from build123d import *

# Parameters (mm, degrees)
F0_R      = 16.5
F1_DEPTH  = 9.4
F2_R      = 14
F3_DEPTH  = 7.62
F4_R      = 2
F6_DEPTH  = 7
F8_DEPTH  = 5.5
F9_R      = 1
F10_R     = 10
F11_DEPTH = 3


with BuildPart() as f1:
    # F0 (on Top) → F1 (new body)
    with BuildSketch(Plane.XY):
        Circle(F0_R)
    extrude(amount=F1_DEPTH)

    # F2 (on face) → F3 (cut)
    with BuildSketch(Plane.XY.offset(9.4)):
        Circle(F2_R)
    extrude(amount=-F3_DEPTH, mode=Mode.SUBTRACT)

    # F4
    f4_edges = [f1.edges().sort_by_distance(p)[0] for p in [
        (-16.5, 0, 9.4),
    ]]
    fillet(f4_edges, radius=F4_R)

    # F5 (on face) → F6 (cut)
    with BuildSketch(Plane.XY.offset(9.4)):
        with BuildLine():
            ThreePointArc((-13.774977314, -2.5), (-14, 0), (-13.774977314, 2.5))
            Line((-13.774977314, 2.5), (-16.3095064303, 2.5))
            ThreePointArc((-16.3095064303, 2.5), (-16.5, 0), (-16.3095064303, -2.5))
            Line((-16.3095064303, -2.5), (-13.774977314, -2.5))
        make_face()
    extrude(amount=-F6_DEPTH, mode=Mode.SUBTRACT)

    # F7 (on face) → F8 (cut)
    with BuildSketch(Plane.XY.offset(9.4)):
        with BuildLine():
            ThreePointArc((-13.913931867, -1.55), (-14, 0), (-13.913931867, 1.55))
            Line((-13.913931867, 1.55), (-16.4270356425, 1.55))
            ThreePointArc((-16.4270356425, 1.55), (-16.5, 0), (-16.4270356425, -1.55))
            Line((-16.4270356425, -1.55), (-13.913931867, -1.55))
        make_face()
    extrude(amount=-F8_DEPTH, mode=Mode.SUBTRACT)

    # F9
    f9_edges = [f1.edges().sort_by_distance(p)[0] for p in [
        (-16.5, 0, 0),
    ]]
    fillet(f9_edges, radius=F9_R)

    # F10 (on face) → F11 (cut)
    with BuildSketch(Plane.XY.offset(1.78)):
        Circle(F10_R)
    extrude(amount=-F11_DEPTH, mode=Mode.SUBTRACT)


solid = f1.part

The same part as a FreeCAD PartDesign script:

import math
import FreeCAD as App
import Part
import Sketcher
from FreeCAD import Vector
Q = App.Units.Quantity


def edges_at(feature, points):
    """Names of the edges that pass closest to the given points."""
    edges = feature.Shape.Edges
    near = lambda p: min(range(len(edges)), key=lambda i: edges[i].distToShape(Part.Vertex(*p))[0])
    return sorted({f"Edge{near(p) + 1}" for p in points})

doc = App.newDocument("Part")
body = doc.addObject("PartDesign::Body", "Body")

sketch1 = body.newObject("Sketcher::SketchObject", "Sketch")
sketch1.AttachmentSupport = (doc.getObject("XY_Plane"), [""])
sketch1.MapMode = "FlatFace"
sketch1.addGeometry(Part.Circle(Vector(0, 0, 0), Vector(0, 0, 1), 16), False)
sketch1.addConstraint(Sketcher.Constraint("Coincident", 0, 3, -1, 1))
sketch1.addConstraint(Sketcher.Constraint("Diameter", 0, Q("33 mm")))
pad1 = body.newObject("PartDesign::Pad", "Pad")
pad1.Profile = sketch1
pad1.Length = 9.4

sketch2 = body.newObject("Sketcher::SketchObject", "Sketch001")
sketch2.AttachmentSupport = (doc.getObject("XY_Plane"), [""])
sketch2.MapMode = "FlatFace"
sketch2.AttachmentOffset = App.Placement(Vector(0, 0, 9.4), App.Rotation())
sketch2.addGeometry(Part.Circle(Vector(0, 0, 0), Vector(0, 0, 1), 14), False)
sketch2.addConstraint(Sketcher.Constraint("Coincident", 0, 3, -1, 1))
sketch2.addConstraint(Sketcher.Constraint("Diameter", 0, Q("28 mm")))
pocket1 = body.newObject("PartDesign::Pocket", "Pocket")
pocket1.Profile = sketch2
pocket1.Length = 7.62
doc.recompute()

fillet = body.newObject("PartDesign::Fillet", "Fillet")
fillet.Base = (pocket1, edges_at(pocket1, [(-16.5, 0, 9.4)]))
fillet.Radius = 2

sketch3 = body.newObject("Sketcher::SketchObject", "Sketch002")
sketch3.AttachmentSupport = (doc.getObject("XY_Plane"), [""])
sketch3.MapMode = "FlatFace"
sketch3.AttachmentOffset = App.Placement(Vector(0, 0, 9.4), App.Rotation())
sketch3.addGeometry(Part.ArcOfCircle(Part.Circle(Vector(0, 0, 0), Vector(0, 0, 1), 14), math.radians(170), math.radians(190)), False)
sketch3.addGeometry(Part.LineSegment(Vector(-13.8, 2.5, 0), Vector(-16.3, 2.5, 0)), False)
sketch3.addGeometry(Part.ArcOfCircle(Part.Circle(Vector(0, 0, 0), Vector(0, 0, 1), 16.5), math.radians(171.29), math.radians(188.71)), False)
sketch3.addGeometry(Part.LineSegment(Vector(-16.3, -2.5, 0), Vector(-13.8, -2.5, 0)), False)
sketch3.addConstraint(Sketcher.Constraint("Coincident", 0, 1, 1, 1))
sketch3.addConstraint(Sketcher.Constraint("Coincident", 1, 2, 2, 1))
sketch3.addConstraint(Sketcher.Constraint("Coincident", 2, 2, 3, 1))
sketch3.addConstraint(Sketcher.Constraint("Coincident", 3, 2, 0, 2))
sketch3.addConstraint(Sketcher.Constraint("Horizontal", 1))
sketch3.addConstraint(Sketcher.Constraint("Horizontal", 3))
sketch3.addConstraint(Sketcher.Constraint("Coincident", 0, 3, -1, 1))
sketch3.addConstraint(Sketcher.Constraint("Coincident", 2, 3, -1, 1))
sketch3.addConstraint(Sketcher.Constraint("Vertical", 1, 2, 2, 2))
sketch3.addConstraint(Sketcher.Constraint("Radius", 0, Q("14 mm")))
sketch3.addConstraint(Sketcher.Constraint("Radius", 2, Q("16.5 mm")))
sketch3.addConstraint(Sketcher.Constraint("DistanceY", 2, 2, 1, 2, Q("5 mm")))
pocket2 = body.newObject("PartDesign::Pocket", "Pocket001")
pocket2.Profile = sketch3
pocket2.Length = 7

sketch4 = body.newObject("Sketcher::SketchObject", "Sketch003")
sketch4.AttachmentSupport = (doc.getObject("XY_Plane"), [""])
sketch4.MapMode = "FlatFace"
sketch4.AttachmentOffset = App.Placement(Vector(0, 0, 9.4), App.Rotation())
sketch4.addGeometry(Part.ArcOfCircle(Part.Circle(Vector(0, 0, 0), Vector(0, 0, 1), 14), math.radians(173.64), math.radians(186.36)), False)
sketch4.addGeometry(Part.LineSegment(Vector(-13.9, 1.6, 0), Vector(-16.4, 1.6, 0)), False)
sketch4.addGeometry(Part.ArcOfCircle(Part.Circle(Vector(0, 0, 0), Vector(0, 0, 1), 16.5), math.radians(174.61), math.radians(185.39)), False)
sketch4.addGeometry(Part.LineSegment(Vector(-16.4, -1.6, 0), Vector(-13.9, -1.6, 0)), False)
sketch4.addConstraint(Sketcher.Constraint("Coincident", 0, 1, 1, 1))
sketch4.addConstraint(Sketcher.Constraint("Coincident", 1, 2, 2, 1))
sketch4.addConstraint(Sketcher.Constraint("Coincident", 2, 2, 3, 1))
sketch4.addConstraint(Sketcher.Constraint("Coincident", 3, 2, 0, 2))
sketch4.addConstraint(Sketcher.Constraint("Horizontal", 1))
sketch4.addConstraint(Sketcher.Constraint("Horizontal", 3))
sketch4.addConstraint(Sketcher.Constraint("Coincident", 0, 3, -1, 1))
sketch4.addConstraint(Sketcher.Constraint("Coincident", 2, 3, -1, 1))
sketch4.addConstraint(Sketcher.Constraint("Vertical", 1, 2, 2, 2))
sketch4.addConstraint(Sketcher.Constraint("Radius", 0, Q("14 mm")))
sketch4.addConstraint(Sketcher.Constraint("Radius", 2, Q("16.5 mm")))
sketch4.addConstraint(Sketcher.Constraint("DistanceY", 2, 2, 1, 2, Q("3.1 mm")))
pocket3 = body.newObject("PartDesign::Pocket", "Pocket002")
pocket3.Profile = sketch4
pocket3.Length = 5.5
doc.recompute()

fillet2 = body.newObject("PartDesign::Fillet", "Fillet001")
fillet2.Base = (pocket3, edges_at(pocket3, [(-16.5, 0, 0)]))
fillet2.Radius = 1

sketch5 = body.newObject("Sketcher::SketchObject", "Sketch004")
sketch5.AttachmentSupport = (doc.getObject("XY_Plane"), [""])
sketch5.MapMode = "FlatFace"
sketch5.AttachmentOffset = App.Placement(Vector(0, 0, 1.78), App.Rotation())
sketch5.addGeometry(Part.Circle(Vector(0, 0, 0), Vector(0, 0, 1), 10), False)
sketch5.addConstraint(Sketcher.Constraint("Coincident", 0, 3, -1, 1))
sketch5.addConstraint(Sketcher.Constraint("Diameter", 0, Q("20 mm")))
pocket4 = body.newObject("PartDesign::Pocket", "Pocket003")
pocket4.Profile = sketch5
pocket4.Length = 3

doc.recompute()
